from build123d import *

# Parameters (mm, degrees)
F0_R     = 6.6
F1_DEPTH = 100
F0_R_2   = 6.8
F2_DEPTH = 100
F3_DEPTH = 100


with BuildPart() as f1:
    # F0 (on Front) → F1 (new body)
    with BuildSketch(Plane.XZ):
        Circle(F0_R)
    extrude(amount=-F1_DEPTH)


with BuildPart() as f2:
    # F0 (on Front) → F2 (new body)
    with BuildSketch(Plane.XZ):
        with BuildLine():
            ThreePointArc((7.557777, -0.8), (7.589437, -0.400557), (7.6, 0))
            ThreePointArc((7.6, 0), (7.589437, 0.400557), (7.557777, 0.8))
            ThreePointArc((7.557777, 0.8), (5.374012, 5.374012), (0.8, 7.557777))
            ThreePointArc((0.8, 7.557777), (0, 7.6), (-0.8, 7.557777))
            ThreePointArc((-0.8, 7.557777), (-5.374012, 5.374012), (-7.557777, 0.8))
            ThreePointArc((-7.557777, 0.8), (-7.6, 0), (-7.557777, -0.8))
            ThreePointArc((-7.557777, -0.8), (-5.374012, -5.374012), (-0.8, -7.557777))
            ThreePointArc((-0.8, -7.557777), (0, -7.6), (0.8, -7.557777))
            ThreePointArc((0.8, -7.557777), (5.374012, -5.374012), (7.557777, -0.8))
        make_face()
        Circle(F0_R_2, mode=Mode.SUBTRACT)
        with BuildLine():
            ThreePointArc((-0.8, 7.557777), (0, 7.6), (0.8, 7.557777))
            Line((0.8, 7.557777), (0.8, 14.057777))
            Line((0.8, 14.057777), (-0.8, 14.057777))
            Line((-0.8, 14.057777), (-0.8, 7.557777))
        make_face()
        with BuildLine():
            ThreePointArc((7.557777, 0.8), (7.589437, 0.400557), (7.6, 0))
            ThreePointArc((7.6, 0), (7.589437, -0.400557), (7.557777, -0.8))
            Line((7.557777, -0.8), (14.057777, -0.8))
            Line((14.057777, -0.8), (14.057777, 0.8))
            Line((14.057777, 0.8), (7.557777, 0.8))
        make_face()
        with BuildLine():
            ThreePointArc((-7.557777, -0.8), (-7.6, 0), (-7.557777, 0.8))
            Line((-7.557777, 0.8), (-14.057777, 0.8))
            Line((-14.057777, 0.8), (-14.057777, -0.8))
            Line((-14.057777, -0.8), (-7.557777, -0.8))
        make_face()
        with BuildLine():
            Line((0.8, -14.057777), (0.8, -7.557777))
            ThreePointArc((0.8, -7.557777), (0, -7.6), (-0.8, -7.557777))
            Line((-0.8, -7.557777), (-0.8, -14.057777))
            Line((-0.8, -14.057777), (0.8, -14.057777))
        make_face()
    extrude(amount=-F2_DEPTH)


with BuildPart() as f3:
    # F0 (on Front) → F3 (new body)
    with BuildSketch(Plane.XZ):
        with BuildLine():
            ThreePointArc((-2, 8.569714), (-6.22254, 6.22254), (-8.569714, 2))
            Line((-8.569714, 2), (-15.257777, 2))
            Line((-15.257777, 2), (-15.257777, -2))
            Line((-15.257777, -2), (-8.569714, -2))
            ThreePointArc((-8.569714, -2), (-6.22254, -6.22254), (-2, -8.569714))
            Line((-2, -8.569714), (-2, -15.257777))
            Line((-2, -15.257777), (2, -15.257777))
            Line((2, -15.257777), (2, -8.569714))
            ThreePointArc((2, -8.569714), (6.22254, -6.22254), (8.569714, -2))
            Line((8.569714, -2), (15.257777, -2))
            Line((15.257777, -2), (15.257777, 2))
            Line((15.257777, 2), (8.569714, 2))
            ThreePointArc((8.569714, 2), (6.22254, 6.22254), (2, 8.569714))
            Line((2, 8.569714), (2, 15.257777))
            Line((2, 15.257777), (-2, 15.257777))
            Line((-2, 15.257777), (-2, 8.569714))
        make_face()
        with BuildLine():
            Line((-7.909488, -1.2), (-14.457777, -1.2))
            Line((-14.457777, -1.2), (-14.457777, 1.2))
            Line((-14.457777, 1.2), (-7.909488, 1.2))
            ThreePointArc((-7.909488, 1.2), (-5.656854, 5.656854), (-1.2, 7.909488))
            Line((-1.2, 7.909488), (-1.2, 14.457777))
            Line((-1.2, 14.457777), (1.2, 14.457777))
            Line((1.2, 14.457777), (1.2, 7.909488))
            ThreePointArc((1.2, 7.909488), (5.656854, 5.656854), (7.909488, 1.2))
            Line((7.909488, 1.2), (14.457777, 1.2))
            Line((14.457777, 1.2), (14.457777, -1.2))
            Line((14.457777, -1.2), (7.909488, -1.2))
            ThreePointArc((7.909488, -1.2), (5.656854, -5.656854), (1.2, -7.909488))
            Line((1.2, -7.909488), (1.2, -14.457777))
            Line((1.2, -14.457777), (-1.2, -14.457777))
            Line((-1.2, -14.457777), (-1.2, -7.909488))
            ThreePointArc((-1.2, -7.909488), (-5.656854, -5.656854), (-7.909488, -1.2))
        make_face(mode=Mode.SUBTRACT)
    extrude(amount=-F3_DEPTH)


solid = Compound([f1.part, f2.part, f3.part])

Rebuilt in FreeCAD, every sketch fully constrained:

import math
import FreeCAD as App
import Part
import Sketcher

doc = App.newDocument("Part")
params = doc.addObject("Spreadsheet::Sheet", "Params")
for row, (alias, value) in enumerate([
    ("sketch1_diameter", "13.2 mm"),
    ("pad1_length", "100 mm"),
    ("sketch2_diameter", "13.6 mm"),
    ("sketch2_width", "1.6 mm"),
    ("sketch2_width2", "6.5 mm"),
    ("pad2_length", "100 mm"),
    ("sketch3_radius", "8.000002 mm"),
    ("sketch3_width", "4 mm"),
    ("sketch3_width2", "2.4 mm"),
    ("pad3_length", "100 mm"),
], start=1):
    params.set(f"A{row}", alias)
    params.set(f"B{row}", "=" + value)
    params.setAlias(f"B{row}", alias)

body = doc.addObject("PartDesign::Body", "Body")

# Sketch on XZ plane
sketch1 = body.newObject("Sketcher::SketchObject", "Sketch")
sketch1.AttachmentSupport = (doc.getObject("XZ_Plane"), [""])
sketch1.MapMode = "FlatFace"
sketch1.addGeometry(Part.Circle(App.Vector(0, 0, 0), App.Vector(0, 0, 1), 7), False)
sketch1.addConstraint([
    Sketcher.Constraint("Coincident", 0, 3, -1, 1),
    Sketcher.Constraint("Diameter", 0, 13.2),
])
sketch1.setExpression("Constraints[1]", "Params.sketch1_diameter")
pad1 = body.newObject("PartDesign::Pad", "Pad")
pad1.Profile = sketch1
pad1.setExpression("Length", "Params.pad1_length")
pad1.Reversed = True
body2 = doc.addObject("PartDesign::Body", "Body001")

# Sketch on XZ plane
sketch2 = body2.newObject("Sketcher::SketchObject", "Sketch001")
sketch2.AttachmentSupport = (doc.getObject("XZ_Plane001"), [""])
sketch2.MapMode = "FlatFace"
sketch2.addGeometry([
    Part.ArcOfCircle(Part.Circle(App.Vector(0, 0, 0), App.Vector(0, 0, 1), 7.6), math.radians(6), math.radians(84)),  # 0
    Part.LineSegment(App.Vector(0.8, 7.6, 0), App.Vector(0.8, 14.1, 0)),  # 1
    Part.LineSegment(App.Vector(0.8, 14.1, 0), App.Vector(-0.8, 14.1, 0)),  # 2
    Part.LineSegment(App.Vector(-0.8, 14.1, 0), App.Vector(-0.8, 7.6, 0)),  # 3
    Part.ArcOfCircle(Part.Circle(App.Vector(0, 0, 0), App.Vector(0, 0, 1), 7.6), math.radians(96), math.radians(174)),  # 4
    Part.LineSegment(App.Vector(-7.6, 0.8, 0), App.Vector(-14.1, 0.8, 0)),  # 5
    Part.LineSegment(App.Vector(-14.1, 0.8, 0), App.Vector(-14.1, -0.8, 0)),  # 6
    Part.LineSegment(App.Vector(-14.1, -0.8, 0), App.Vector(-7.6, -0.8, 0)),  # 7
    Part.ArcOfCircle(Part.Circle(App.Vector(0, 0, 0), App.Vector(0, 0, 1), 7.6), math.radians(-174), math.radians(-96)),  # 8
    Part.LineSegment(App.Vector(-0.8, -7.6, 0), App.Vector(-0.8, -14.1, 0)),  # 9
    Part.LineSegment(App.Vector(-0.8, -14.1, 0), App.Vector(0.8, -14.1, 0)),  # 10
    Part.LineSegment(App.Vector(0.8, -14.1, 0), App.Vector(0.8, -7.6, 0)),  # 11
    Part.ArcOfCircle(Part.Circle(App.Vector(0, 0, 0), App.Vector(0, 0, 1), 7.6), math.radians(-84), math.radians(-6)),  # 12
    Part.LineSegment(App.Vector(7.6, -0.8, 0), App.Vector(14.1, -0.8, 0)),  # 13
    Part.LineSegment(App.Vector(14.1, -0.8, 0), App.Vector(14.1, 0.8, 0)),  # 14
    Part.LineSegment(App.Vector(14.1, 0.8, 0), App.Vector(7.6, 0.8, 0)),  # 15
    Part.Circle(App.Vector(0, 0, 0), App.Vector(0, 0, 1), 6.8),  # 16
], False)
sketch2.addConstraint([
    Sketcher.Constraint("Coincident", 0, 2, 1, 1),
    Sketcher.Constraint("Coincident", 1, 2, 2, 1),
    Sketcher.Constraint("Coincident", 2, 2, 3, 1),
    Sketcher.Constraint("Coincident", 3, 2, 4, 1),
    Sketcher.Constraint("Coincident", 4, 2, 5, 1),
    Sketcher.Constraint("Coincident", 5, 2, 6, 1),
    Sketcher.Constraint("Coincident", 6, 2, 7, 1),
    Sketcher.Constraint("Coincident", 7, 2, 8, 1),
    Sketcher.Constraint("Coincident", 8, 2, 9, 1),
    Sketcher.Constraint("Coincident", 9, 2, 10, 1),
    Sketcher.Constraint("Coincident", 10, 2, 11, 1),
    Sketcher.Constraint("Coincident", 11, 2, 12, 1),
    Sketcher.Constraint("Coincident", 12, 2, 13, 1),
    Sketcher.Constraint("Coincident", 13, 2, 14, 1),
    Sketcher.Constraint("Coincident", 14, 2, 15, 1),
    Sketcher.Constraint("Coincident", 15, 2, 0, 1),
    Sketcher.Constraint("Vertical", 1),
    Sketcher.Constraint("Horizontal", 2),
    Sketcher.Constraint("Vertical", 3),
    Sketcher.Constraint("Horizontal", 5),
    Sketcher.Constraint("Vertical", 6),
    Sketcher.Constraint("Horizontal", 7),
    Sketcher.Constraint("Vertical", 9),
    Sketcher.Constraint("Horizontal", 10),
    Sketcher.Constraint("Vertical", 11),
    Sketcher.Constraint("Horizontal", 13),
    Sketcher.Constraint("Vertical", 14),
    Sketcher.Constraint("Horizontal", 15),
    Sketcher.Constraint("Coincident", 0, 3, -1, 1),
    Sketcher.Constraint("Coincident", 4, 3, -1, 1),
    Sketcher.Constraint("Coincident", 8, 3, -1, 1),
    Sketcher.Constraint("Coincident", 12, 3, -1, 1),
    Sketcher.Constraint("Coincident", 16, 3, -1, 1),
    Sketcher.Constraint("Equal", 0, 4),
    Sketcher.Constraint("Equal", 4, 8),
    Sketcher.Constraint("Equal", 8, 12),
    Sketcher.Constraint("Symmetric", 1, 2, 9, 2, -1, 1),
    Sketcher.Constraint("Symmetric", 5, 2, 13, 2, -1, 1),
    Sketcher.Constraint("Horizontal", 0, 2, 3, 2),
    Sketcher.Constraint("Horizontal", 8, 2, 11, 2),
    Sketcher.Constraint("Horizontal", 7, 2, 12, 2),
    Sketcher.Constraint("Horizontal", 5, 2, 14, 2),
    Sketcher.Constraint("Equal", 15, 1),
    Sketcher.Constraint("Equal", 10, 6),
    Sketcher.Constraint("Diameter", 16, 13.6),
    Sketcher.Constraint("DistanceX", 2, 2, 2, 1, 1.6),
    Sketcher.Constraint("DistanceX", 5, 2, 5, 1, 6.5),
    Sketcher.Constraint("Radius", 0, 7.599996),
])
sketch2.setExpression("Constraints[44]", "Params.sketch2_diameter")
sketch2.setExpression("Constraints[45]", "Params.sketch2_width")
sketch2.setExpression("Constraints[46]", "Params.sketch2_width2")
pad2 = body2.newObject("PartDesign::Pad", "Pad001")
pad2.Profile = sketch2
pad2.setExpression("Length", "Params.pad2_length")
pad2.Reversed = True
body3 = doc.addObject("PartDesign::Body", "Body002")

# Sketch on XZ plane
sketch3 = body3.newObject("Sketcher::SketchObject", "Sketch002")
sketch3.AttachmentSupport = (doc.getObject("XZ_Plane002"), [""])
sketch3.MapMode = "FlatFace"
sketch3.addGeometry([
    Part.ArcOfCircle(Part.Circle(App.Vector(0, 0, 0), App.Vector(0, 0, 1), 8.8), math.radians(103), math.radians(167)),  # 0
    Part.LineSegment(App.Vector(-8.6, 2, 0), App.Vector(-15.3, 2, 0)),  # 1
    Part.LineSegment(App.Vector(-15.3, 2, 0), App.Vector(-15.3, -2, 0)),  # 2
    Part.LineSegment(App.Vector(-15.3, -2, 0), App.Vector(-8.6, -2, 0)),  # 3
    Part.ArcOfCircle(Part.Circle(App.Vector(0, 0, 0), App.Vector(0, 0, 1), 8.8), math.radians(-167), math.radians(-103)),  # 4
    Part.LineSegment(App.Vector(-2, -8.6, 0), App.Vector(-2, -15.3, 0)),  # 5
    Part.LineSegment(App.Vector(-2, -15.3, 0), App.Vector(2, -15.3, 0)),  # 6
    Part.LineSegment(App.Vector(2, -15.3, 0), App.Vector(2, -8.6, 0)),  # 7
    Part.ArcOfCircle(Part.Circle(App.Vector(0, 0, 0), App.Vector(0, 0, 1), 8.8), math.radians(-77), math.radians(-13)),  # 8
    Part.LineSegment(App.Vector(8.6, -2, 0), App.Vector(15.3, -2, 0)),  # 9
    Part.LineSegment(App.Vector(15.3, -2, 0), App.Vector(15.3, 2, 0)),  # 10
    Part.LineSegment(App.Vector(15.3, 2, 0), App.Vector(8.6, 2, 0)),  # 11
    Part.ArcOfCircle(Part.Circle(App.Vector(0, 0, 0), App.Vector(0, 0, 1), 8.8), math.radians(13), math.radians(77)),  # 12
    Part.LineSegment(App.Vector(2, 8.6, 0), App.Vector(2, 15.3, 0)),  # 13
    Part.LineSegment(App.Vector(2, 15.3, 0), App.Vector(-2, 15.3, 0)),  # 14
    Part.LineSegment(App.Vector(-2, 15.3, 0), App.Vector(-2, 8.6, 0)),  # 15
    Part.ArcOfCircle(Part.Circle(App.Vector(0, 0, 0), App.Vector(0, 0, 1), 8), math.radians(-171), math.radians(-99)),  # 16
    Part.LineSegment(App.Vector(-7.9, -1.2, 0), App.Vector(-14.5, -1.2, 0)),  # 17
    Part.LineSegment(App.Vector(-14.5, -1.2, 0), App.Vector(-14.5, 1.2, 0)),  # 18
    Part.LineSegment(App.Vector(-14.5, 1.2, 0), App.Vector(-7.9, 1.2, 0)),  # 19
    Part.ArcOfCircle(Part.Circle(App.Vector(0, 0, 0), App.Vector(0, 0, 1), 8), math.radians(99), math.radians(171)),  # 20
    Part.LineSegment(App.Vector(-1.2, 7.9, 0), App.Vector(-1.2, 14.5, 0)),  # 21
    Part.LineSegment(App.Vector(-1.2, 14.5, 0), App.Vector(1.2, 14.5, 0)),  # 22
    Part.LineSegment(App.Vector(1.2, 14.5, 0), App.Vector(1.2, 7.9, 0)),  # 23
    Part.ArcOfCircle(Part.Circle(App.Vector(0, 0, 0), App.Vector(0, 0, 1), 8), math.radians(9), math.radians(81)),  # 24
    Part.LineSegment(App.Vector(7.9, 1.2, 0), App.Vector(14.5, 1.2, 0)),  # 25
    Part.LineSegment(App.Vector(14.5, 1.2, 0), App.Vector(14.5, -1.2, 0)),  # 26
    Part.LineSegment(App.Vector(14.5, -1.2, 0), App.Vector(7.9, -1.2, 0)),  # 27
    Part.ArcOfCircle(Part.Circle(App.Vector(0, 0, 0), App.Vector(0, 0, 1), 8), math.radians(-81), math.radians(-9)),  # 28
    Part.LineSegment(App.Vector(1.2, -7.9, 0), App.Vector(1.2, -14.5, 0)),  # 29
    Part.LineSegment(App.Vector(1.2, -14.5, 0), App.Vector(-1.2, -14.5, 0)),  # 30
    Part.LineSegment(App.Vector(-1.2, -14.5, 0), App.Vector(-1.2, -7.9, 0)),  # 31
], False)
sketch3.addConstraint([
    Sketcher.Constraint("Coincident", 0, 2, 1, 1),
    Sketcher.Constraint("Coincident", 1, 2, 2, 1),
    Sketcher.Constraint("Coincident", 2, 2, 3, 1),
    Sketcher.Constraint("Coincident", 3, 2, 4, 1),
    Sketcher.Constraint("Coincident", 4, 2, 5, 1),
    Sketcher.Constraint("Coincident", 5, 2, 6, 1),
    Sketcher.Constraint("Coincident", 6, 2, 7, 1),
    Sketcher.Constraint("Coincident", 7, 2, 8, 1),
    Sketcher.Constraint("Coincident", 8, 2, 9, 1),
    Sketcher.Constraint("Coincident", 9, 2, 10, 1),
    Sketcher.Constraint("Coincident", 10, 2, 11, 1),
    Sketcher.Constraint("Coincident", 11, 2, 12, 1),
    Sketcher.Constraint("Coincident", 12, 2, 13, 1),
    Sketcher.Constraint("Coincident", 13, 2, 14, 1),
    Sketcher.Constraint("Coincident", 14, 2, 15, 1),
    Sketcher.Constraint("Coincident", 15, 2, 0, 1),
    Sketcher.Constraint("Coincident", 16, 1, 17, 1),
    Sketcher.Constraint("Coincident", 17, 2, 18, 1),
    Sketcher.Constraint("Coincident", 18, 2, 19, 1),
    Sketcher.Constraint("Coincident", 19, 2, 20, 2),
    Sketcher.Constraint("Coincident", 20, 1, 21, 1),
    Sketcher.Constraint("Coincident", 21, 2, 22, 1),
    Sketcher.Constraint("Coincident", 22, 2, 23, 1),
    Sketcher.Constraint("Coincident", 23, 2, 24, 2),
    Sketcher.Constraint("Coincident", 24, 1, 25, 1),
    Sketcher.Constraint("Coincident", 25, 2, 26, 1),
    Sketcher.Constraint("Coincident", 26, 2, 27, 1),
    Sketcher.Constraint("Coincident", 27, 2, 28, 2),
    Sketcher.Constraint("Coincident", 28, 1, 29, 1),
    Sketcher.Constraint("Coincident", 29, 2, 30, 1),
    Sketcher.Constraint("Coincident", 30, 2, 31, 1),
    Sketcher.Constraint("Coincident", 31, 2, 16, 2),
    Sketcher.Constraint("Horizontal", 1),
    Sketcher.Constraint("Vertical", 2),
    Sketcher.Constraint("Horizontal", 3),
    Sketcher.Constraint("Vertical", 5),
    Sketcher.Constraint("Horizontal", 6),
    Sketcher.Constraint("Vertical", 7),
    Sketcher.Constraint("Horizontal", 9),
    Sketcher.Constraint("Vertical", 10),
    Sketcher.Constraint("Horizontal", 11),
    Sketcher.Constraint("Vertical", 13),
    Sketcher.Constraint("Horizontal", 14),
    Sketcher.Constraint("Vertical", 15),
    Sketcher.Constraint("Horizontal", 17),
    Sketcher.Constraint("Vertical", 18),
    Sketcher.Constraint("Horizontal", 19),
    Sketcher.Constraint("Vertical", 21),
    Sketcher.Constraint("Horizontal", 22),
    Sketcher.Constraint("Vertical", 23),
    Sketcher.Constraint("Horizontal", 25),
    Sketcher.Constraint("Vertical", 26),
    Sketcher.Constraint("Horizontal", 27),
    Sketcher.Constraint("Vertical", 29),
    Sketcher.Constraint("Horizontal", 30),
    Sketcher.Constraint("Vertical", 31),
    Sketcher.Constraint("Coincident", 0, 3, -1, 1),
    Sketcher.Constraint("Coincident", 4, 3, -1, 1),
    Sketcher.Constraint("Coincident", 8, 3, -1, 1),
    Sketcher.Constraint("Coincident", 12, 3, -1, 1),
    Sketcher.Constraint("Coincident", 16, 3, -1, 1),
    Sketcher.Constraint("Coincident", 20, 3, -1, 1),
    Sketcher.Constraint("Coincident", 24, 3, -1, 1),
    Sketcher.Constraint("Coincident", 28, 3, -1, 1),
    Sketcher.Constraint("Equal", 0, 4),
    Sketcher.Constraint("Equal", 4, 8),
    Sketcher.Constraint("Equal", 8, 12),
    Sketcher.Constraint("Equal", 16, 20),
    Sketcher.Constraint("Equal", 20, 24),
    Sketcher.Constraint("Equal", 24, 28),
    Sketcher.Constraint("Symmetric", 1, 2, 9, 2, -1, 1),
    Sketcher.Constraint("Symmetric", 5, 2, 13, 2, -1, 1),
    Sketcher.Constraint("Symmetric", 17, 2, 25, 2, -1, 1),
    Sketcher.Constraint("Symmetric", 21, 2, 29, 2, -1, 1),
    Sketcher.Constraint("Horizontal", 4, 2, 7, 2),
    Sketcher.Constraint("Horizontal", 3, 2, 8, 2),
    Sketcher.Constraint("Horizontal", 1, 2, 10, 2),
    Sketcher.Constraint("Horizontal", 12, 2, 15, 2),
    Sketcher.Constraint("Horizontal", 20, 1, 23, 2),
    Sketcher.Constraint("Horizontal", 19, 2, 24, 1),
    Sketcher.Constraint("Horizontal", 17, 2, 26, 2),
    Sketcher.Constraint("Horizontal", 28, 1, 31, 2),
    Sketcher.Constraint("Equal", 14, 2),
    Sketcher.Constraint("Equal", 11, 5),
    Sketcher.Constraint("Equal", 30, 18),
    Sketcher.Constraint("Equal", 27, 21),
    Sketcher.Constraint("Radius", 16, 8.000002),
    Sketcher.Constraint("DistanceX", 6, 1, 6, 2, 4.0),
    Sketcher.Constraint("DistanceX", 22, 1, 22, 2, 2.4),
    Sketcher.Constraint("DistanceX", 2, 2, 17, 2, 0.8),
    Sketcher.Constraint("Radius", 0, 8.799997),
    Sketcher.Constraint("DistanceX", 17, 2, 17, 1, 6.548289),
])
sketch3.setExpression("Constraints[86]", "Params.sketch3_radius")
sketch3.setExpression("Constraints[87]", "Params.sketch3_width")
sketch3.setExpression("Constraints[88]", "Params.sketch3_width2")
pad3 = body3.newObject("PartDesign::Pad", "Pad002")
pad3.Profile = sketch3
pad3.setExpression("Length", "Params.pad3_length")
pad3.Reversed = True

doc.recompute()
